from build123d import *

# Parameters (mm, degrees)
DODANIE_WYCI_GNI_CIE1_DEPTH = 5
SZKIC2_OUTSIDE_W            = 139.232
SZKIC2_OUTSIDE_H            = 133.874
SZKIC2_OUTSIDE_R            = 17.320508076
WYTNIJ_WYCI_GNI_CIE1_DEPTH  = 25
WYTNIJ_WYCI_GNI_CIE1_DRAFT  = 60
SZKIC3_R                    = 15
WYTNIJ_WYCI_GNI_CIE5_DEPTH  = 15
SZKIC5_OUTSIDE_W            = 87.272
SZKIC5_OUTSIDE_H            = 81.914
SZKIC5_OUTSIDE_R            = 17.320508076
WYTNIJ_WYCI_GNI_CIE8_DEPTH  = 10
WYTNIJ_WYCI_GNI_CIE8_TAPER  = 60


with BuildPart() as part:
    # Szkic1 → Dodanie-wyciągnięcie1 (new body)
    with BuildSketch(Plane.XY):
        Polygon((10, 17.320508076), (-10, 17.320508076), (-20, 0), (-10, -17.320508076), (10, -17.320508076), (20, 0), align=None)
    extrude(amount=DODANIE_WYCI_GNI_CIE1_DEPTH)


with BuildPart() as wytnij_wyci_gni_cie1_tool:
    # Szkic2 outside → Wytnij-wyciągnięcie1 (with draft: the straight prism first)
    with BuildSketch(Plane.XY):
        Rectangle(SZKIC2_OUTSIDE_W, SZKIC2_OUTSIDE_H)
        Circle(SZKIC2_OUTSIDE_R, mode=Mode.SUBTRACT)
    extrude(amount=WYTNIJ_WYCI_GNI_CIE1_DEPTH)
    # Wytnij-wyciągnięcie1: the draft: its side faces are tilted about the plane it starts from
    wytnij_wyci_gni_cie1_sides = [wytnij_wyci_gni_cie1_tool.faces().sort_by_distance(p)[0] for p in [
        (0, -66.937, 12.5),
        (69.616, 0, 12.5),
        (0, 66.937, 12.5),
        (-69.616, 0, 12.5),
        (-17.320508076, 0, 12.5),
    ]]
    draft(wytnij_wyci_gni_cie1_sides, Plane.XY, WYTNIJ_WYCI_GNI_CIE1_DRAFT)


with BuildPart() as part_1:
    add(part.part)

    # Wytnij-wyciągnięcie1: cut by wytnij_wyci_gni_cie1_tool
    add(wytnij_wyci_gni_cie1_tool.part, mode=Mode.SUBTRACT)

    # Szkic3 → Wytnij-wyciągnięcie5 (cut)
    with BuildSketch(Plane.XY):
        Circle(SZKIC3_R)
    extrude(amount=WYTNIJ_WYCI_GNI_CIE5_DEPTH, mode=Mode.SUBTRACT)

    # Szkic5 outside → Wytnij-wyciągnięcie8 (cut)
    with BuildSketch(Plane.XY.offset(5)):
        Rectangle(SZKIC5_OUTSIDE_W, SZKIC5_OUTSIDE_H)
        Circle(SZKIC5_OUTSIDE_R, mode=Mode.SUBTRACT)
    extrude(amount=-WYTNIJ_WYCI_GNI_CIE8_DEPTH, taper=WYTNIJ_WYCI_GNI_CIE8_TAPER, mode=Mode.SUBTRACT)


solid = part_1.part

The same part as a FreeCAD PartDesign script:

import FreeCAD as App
import Part
import Sketcher
from FreeCAD import Vector
Q = App.Units.Quantity


def faces_at(feature, points):
    """Names of the faces that lie closest to the given points."""
    faces = feature.Shape.Faces
    near = lambda p: min(range(len(faces)), key=lambda i: faces[i].distToShape(Part.Vertex(*p))[0])
    return sorted({f"Face{near(p) + 1}" for p in points})


def add_polygon(sketch, points):
    """Adds a closed chain of lines whose ends are joined by coincident constraints."""
    first, n = sketch.GeometryCount, len(points)
    for a, b in zip(points, points[1:] + points[:1]):
        sketch.addGeometry(Part.LineSegment(App.Vector(*a, 0), App.Vector(*b, 0)), False)
    for i in range(n):
        sketch.addConstraint(Sketcher.Constraint("Coincident", first + i, 2, first + (i + 1) % n, 1))

doc = App.newDocument("Part")
body = doc.addObject("PartDesign::Body", "Body")

sketch1 = body.newObject("Sketcher::SketchObject", "Sketch")
sketch1.AttachmentSupport = (doc.getObject("XY_Plane"), [""])
sketch1.MapMode = "FlatFace"
add_polygon(sketch1, [(10, 17), (-10, 17), (-20, 0), (-10, -17), (10, -17), (20, 0)])
sketch1.addConstraint(Sketcher.Constraint("Horizontal", 0))
sketch1.addConstraint(Sketcher.Constraint("Horizontal", 3))
sketch1.addConstraint(Sketcher.Constraint("Symmetric", 0, 2, 3, 2, -1, 1))
sketch1.addConstraint(Sketcher.Constraint("Symmetric", 1, 2, 4, 2, -1, 1))
sketch1.addConstraint(Sketcher.Constraint("PointOnObject", 1, 2, -1))
sketch1.addConstraint(Sketcher.Constraint("Parallel", 2, 5))
sketch1.addConstraint(Sketcher.Constraint("Vertical", 0, 2, 2, 2))
sketch1.addConstraint(Sketcher.Constraint("DistanceX", 0, 2, 0, 1, 20.0))
sketch1.addConstraint(Sketcher.Constraint("Angle", 1, Q("-120 deg")))
sketch1.addConstraint(Sketcher.Constraint("Distance", 1, 20.0))
pad1 = body.newObject("PartDesign::Pad", "Pad")
pad1.Profile = sketch1
pad1.Length = 5
body2 = doc.addObject("PartDesign::Body", "Body001")

sketch2 = body2.newObject("Sketcher::SketchObject", "Sketch001")
sketch2.AttachmentSupport = (doc.getObject("XY_Plane001"), [""])
sketch2.MapMode = "FlatFace"
add_polygon(sketch2, [(-70, 67), (-70, -67), (70, -67), (70, 67)])
sketch2.addGeometry(Part.Circle(Vector(0, 0, 0), Vector(0, 0, 1), 17), False)
sketch2.addConstraint(Sketcher.Constraint("Vertical", 0))
sketch2.addConstraint(Sketcher.Constraint("Horizontal", 1))
sketch2.addConstraint(Sketcher.Constraint("Vertical", 2))
sketch2.addConstraint(Sketcher.Constraint("Horizontal", 3))
sketch2.addConstraint(Sketcher.Constraint("Coincident", 4, 3, -1, 1))
sketch2.addConstraint(Sketcher.Constraint("Symmetric", 0, 2, 2, 2, -1, 1))
sketch2.addConstraint(Sketcher.Constraint("DistanceX", 1, 1, 1, 2, 139.232))
sketch2.addConstraint(Sketcher.Constraint("DistanceY", 0, 2, 0, 1, 133.874))
sketch2.addConstraint(Sketcher.Constraint("Diameter", 4, 34.641016))
pad2 = body2.newObject("PartDesign::Pad", "Pad001")
pad2.Profile = sketch2
pad2.Length = 25
doc.recompute()

draft = body2.newObject("PartDesign::Draft", "Draft")
draft.Base = (pad2, faces_at(pad2, [
    (0, -66.937, 12.5),
    (69.616, 0, 12.5),
    (0, 66.937, 12.5),
    (-69.616, 0, 12.5),
    (-17.321, 0, 12.5),
]))
draft.NeutralPlane = (doc.getObject("XY_Plane001"), [""])
draft.Angle = 60
draft.Reversed = False
doc.recompute()

boolean = body.newObject("PartDesign::Boolean", "Boolean")
boolean.Type = "Cut"
boolean.addObjects([body2])

sketch3 = body.newObject("Sketcher::SketchObject", "Sketch002")
sketch3.AttachmentSupport = (doc.getObject("XY_Plane"), [""])
sketch3.MapMode = "FlatFace"
sketch3.addGeometry(Part.Circle(Vector(0, 0, 0), Vector(0, 0, 1), 15), False)
sketch3.addConstraint(Sketcher.Constraint("Coincident", 0, 3, -1, 1))
sketch3.addConstraint(Sketcher.Constraint("Diameter", 0, 30.0))
pocket1 = body.newObject("PartDesign::Pocket", "Pocket")
pocket1.Profile = sketch3
pocket1.Length = 15
pocket1.Reversed = True

sketch4 = body.newObject("Sketcher::SketchObject", "Sketch003")
sketch4.AttachmentSupport = (doc.getObject("XY_Plane"), [""])
sketch4.MapMode = "FlatFace"
sketch4.AttachmentOffset = App.Placement(Vector(0, 0, 5), App.Rotation())
add_polygon(sketch4, [(-44, 41), (-44, -41), (44, -41), (44, 41)])
sketch4.addGeometry(Part.Circle(Vector(0, 0, 0), Vector(0, 0, 1), 17), False)
sketch4.addConstraint(Sketcher.Constraint("Vertical", 0))
sketch4.addConstraint(Sketcher.Constraint("Horizontal", 1))
sketch4.addConstraint(Sketcher.Constraint("Vertical", 2))
sketch4.addConstraint(Sketcher.Constraint("Horizontal", 3))
sketch4.addConstraint(Sketcher.Constraint("Coincident", 4, 3, -1, 1))
sketch4.addConstraint(Sketcher.Constraint("Symmetric", 0, 2, 2, 2, -1, 1))
sketch4.addConstraint(Sketcher.Constraint("DistanceX", 1, 1, 1, 2, 87.272))
sketch4.addConstraint(Sketcher.Constraint("DistanceY", 0, 2, 0, 1, 81.914))
sketch4.addConstraint(Sketcher.Constraint("Diameter", 4, 34.641016))
pocket2 = body.newObject("PartDesign::Pocket", "Pocket001")
pocket2.Profile = sketch4
pocket2.Length = 10
pocket2.TaperAngle = 60

doc.recompute()
